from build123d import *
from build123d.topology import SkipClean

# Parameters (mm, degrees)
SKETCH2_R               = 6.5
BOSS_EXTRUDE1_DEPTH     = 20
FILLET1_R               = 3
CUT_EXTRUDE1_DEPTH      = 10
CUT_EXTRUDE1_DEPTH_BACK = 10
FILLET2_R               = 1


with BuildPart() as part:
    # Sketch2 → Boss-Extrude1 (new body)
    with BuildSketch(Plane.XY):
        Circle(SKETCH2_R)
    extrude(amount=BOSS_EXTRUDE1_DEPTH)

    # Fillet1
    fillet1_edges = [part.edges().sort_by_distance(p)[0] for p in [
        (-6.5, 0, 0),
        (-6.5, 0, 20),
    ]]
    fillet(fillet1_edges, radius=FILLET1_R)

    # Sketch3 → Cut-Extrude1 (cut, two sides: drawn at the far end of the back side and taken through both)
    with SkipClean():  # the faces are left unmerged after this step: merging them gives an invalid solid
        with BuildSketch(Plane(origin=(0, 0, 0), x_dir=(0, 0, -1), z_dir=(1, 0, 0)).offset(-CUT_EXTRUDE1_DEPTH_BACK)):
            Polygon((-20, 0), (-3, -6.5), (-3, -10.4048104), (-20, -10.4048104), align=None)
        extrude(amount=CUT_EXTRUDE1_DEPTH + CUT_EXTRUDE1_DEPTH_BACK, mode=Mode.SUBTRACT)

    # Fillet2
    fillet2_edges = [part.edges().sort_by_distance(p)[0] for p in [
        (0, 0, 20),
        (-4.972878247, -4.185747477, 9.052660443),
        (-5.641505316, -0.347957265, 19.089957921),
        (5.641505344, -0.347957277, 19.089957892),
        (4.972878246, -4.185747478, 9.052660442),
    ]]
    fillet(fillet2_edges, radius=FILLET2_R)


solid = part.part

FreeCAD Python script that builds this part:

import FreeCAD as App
import Part
import Sketcher
Q = App.Units.Quantity


def edges_at(feature, points):
    """Names of the edges that pass closest to the given points."""
    edges = feature.Shape.Edges
    near = lambda p: min(range(len(edges)), key=lambda i: edges[i].distToShape(Part.Vertex(*p))[0])
    return sorted({f"Edge{near(p) + 1}" for p in points})


def add_polygon(sketch, points):
    """Adds a closed chain of lines whose ends are joined by coincident constraints."""
    first, n = sketch.GeometryCount, len(points)
    for a, b in zip(points, points[1:] + points[:1]):
        sketch.addGeometry(Part.LineSegment(App.Vector(*a, 0), App.Vector(*b, 0)), False)
    for i in range(n):
        sketch.addConstraint(Sketcher.Constraint("Coincident", first + i, 2, first + (i + 1) % n, 1))

doc = App.newDocument("Part")
body = doc.addObject("PartDesign::Body", "Body")

sketch1 = body.newObject("Sketcher::SketchObject", "Sketch")
sketch1.AttachmentSupport = (doc.getObject("XY_Plane"), [""])
sketch1.MapMode = "FlatFace"
sketch1.addGeometry(Part.Circle(App.Vector(0, 0, 0), App.Vector(0, 0, 1), 6), False)
sketch1.addConstraint([
    Sketcher.Constraint("Coincident", 0, 3, -1, 1),
    Sketcher.Constraint("Diameter", 0, Q("13 mm")),
])
pad1 = body.newObject("PartDesign::Pad", "Pad")
pad1.Profile = sketch1
pad1.Length = 20
doc.recompute()

fillet = body.newObject("PartDesign::Fillet", "Fillet")
fillet.Base = (pad1, edges_at(pad1, [(-6.5, 0, 0), (-6.5, 0, 20)]))
fillet.Radius = 3

sketch2 = body.newObject("Sketcher::SketchObject", "Sketch001")
sketch2.AttachmentSupport = (doc.getObject("YZ_Plane"), [""])
sketch2.MapMode = "FlatFace"
add_polygon(sketch2, [(-6.5, 3), (0, 20), (-10.4, 20), (-10.4, 3)])
sketch2.addConstraint([
    Sketcher.Constraint("Horizontal", 1),
    Sketcher.Constraint("Vertical", 2),
    Sketcher.Constraint("Horizontal", 3),
    Sketcher.Constraint("PointOnObject", 0, 2, -2),
    Sketcher.Constraint("DistanceY", 2, 2, 2, 1, Q("17 mm")),
    Sketcher.Constraint("DistanceY", -1, 1, 0, 2, Q("20 mm")),
    Sketcher.Constraint("DistanceX", 3, 2, -1, 1, Q("6.5 mm")),
    Sketcher.Constraint("DistanceX", 1, 2, 1, 1, Q("10.40481 mm")),
])
pocket1 = body.newObject("PartDesign::Pocket", "Pocket")
pocket1.Profile = sketch2
pocket1.Type = "ThroughAll"
pocket1.Midplane = True
doc.recompute()

fillet2 = body.newObject("PartDesign::Fillet", "Fillet001")
fillet2.Base = (pocket1, edges_at(pocket1, [
    (0, 0, 20),
    (-4.973, -4.186, 9.053),
    (-5.642, -0.348, 19.09),
    (5.642, -0.348, 19.09),
    (4.973, -4.186, 9.053),
]))
fillet2.Radius = 1

doc.recompute()
